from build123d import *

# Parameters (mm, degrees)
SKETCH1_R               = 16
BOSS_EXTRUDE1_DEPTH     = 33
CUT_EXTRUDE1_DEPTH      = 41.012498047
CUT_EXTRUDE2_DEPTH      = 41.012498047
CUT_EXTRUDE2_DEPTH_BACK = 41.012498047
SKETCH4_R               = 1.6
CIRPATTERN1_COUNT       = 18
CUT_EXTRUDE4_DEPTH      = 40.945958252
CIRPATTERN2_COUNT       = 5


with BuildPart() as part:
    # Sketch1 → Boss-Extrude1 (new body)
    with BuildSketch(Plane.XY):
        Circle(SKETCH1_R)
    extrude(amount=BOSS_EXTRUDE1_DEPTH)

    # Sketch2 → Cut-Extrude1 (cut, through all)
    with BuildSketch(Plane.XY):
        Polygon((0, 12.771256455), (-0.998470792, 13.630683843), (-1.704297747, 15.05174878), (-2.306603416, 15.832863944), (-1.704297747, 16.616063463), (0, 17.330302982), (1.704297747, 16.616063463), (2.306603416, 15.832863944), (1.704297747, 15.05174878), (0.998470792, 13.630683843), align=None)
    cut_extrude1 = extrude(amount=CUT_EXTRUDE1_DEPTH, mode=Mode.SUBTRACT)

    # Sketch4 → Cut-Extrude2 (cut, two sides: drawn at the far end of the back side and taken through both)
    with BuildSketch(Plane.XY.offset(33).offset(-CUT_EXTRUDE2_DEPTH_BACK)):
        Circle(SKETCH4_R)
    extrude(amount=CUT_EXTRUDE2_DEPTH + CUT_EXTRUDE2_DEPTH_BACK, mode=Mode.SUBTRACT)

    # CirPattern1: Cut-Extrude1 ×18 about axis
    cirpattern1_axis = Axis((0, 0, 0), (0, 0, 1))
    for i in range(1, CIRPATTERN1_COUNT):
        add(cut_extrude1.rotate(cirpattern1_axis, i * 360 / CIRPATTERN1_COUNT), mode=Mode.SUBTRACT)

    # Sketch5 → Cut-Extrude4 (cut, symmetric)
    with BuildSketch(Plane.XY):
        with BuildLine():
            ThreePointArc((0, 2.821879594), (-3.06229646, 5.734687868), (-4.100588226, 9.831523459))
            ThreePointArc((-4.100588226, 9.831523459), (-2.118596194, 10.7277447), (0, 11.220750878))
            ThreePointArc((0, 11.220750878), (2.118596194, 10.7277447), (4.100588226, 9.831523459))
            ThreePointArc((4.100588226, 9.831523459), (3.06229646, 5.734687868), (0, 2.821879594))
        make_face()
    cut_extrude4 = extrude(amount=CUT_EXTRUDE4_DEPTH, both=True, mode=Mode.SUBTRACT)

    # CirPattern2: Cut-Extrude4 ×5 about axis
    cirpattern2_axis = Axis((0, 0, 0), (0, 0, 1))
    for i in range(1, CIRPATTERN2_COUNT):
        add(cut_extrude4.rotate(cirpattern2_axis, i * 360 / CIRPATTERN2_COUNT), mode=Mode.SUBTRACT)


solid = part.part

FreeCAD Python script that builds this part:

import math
import FreeCAD as App
import Part
import Sketcher
from FreeCAD import Vector
Q = App.Units.Quantity

doc = App.newDocument("Part")
params = doc.addObject("Spreadsheet::Sheet", "Params")
for row, (alias, value) in enumerate([
    ("sketch1_diameter", "32 mm"),
    ("pad1_length", "33 mm"),
    ("sketch3_diameter", "3.2 mm"),
    ("pocket3_length", "81.891917 mm"),
], start=1):
    params.set(f"A{row}", alias)
    params.set(f"B{row}", "=" + value)
    params.setAlias(f"B{row}", alias)

body = doc.addObject("PartDesign::Body", "Body")

# Sketch on XY plane
sketch1 = body.newObject("Sketcher::SketchObject", "Sketch")
sketch1.AttachmentSupport = (doc.getObject("XY_Plane"), [""])
sketch1.MapMode = "FlatFace"
sketch1.addGeometry(Part.Circle(Vector(0, 0, 0), Vector(0, 0, 1), 16), False)
sketch1.addConstraint([
    Sketcher.Constraint("Coincident", 0, 3, -1, 1),
    Sketcher.Constraint("Diameter", 0, Q("32 mm")),
])
sketch1.setExpression("Constraints[1]", "Params.sketch1_diameter")
pad1 = body.newObject("PartDesign::Pad", "Pad")
pad1.Profile = sketch1
pad1.setExpression("Length", "Params.pad1_length")

# Sketch on XY plane
sketch2 = body.newObject("Sketcher::SketchObject", "Sketch001")
sketch2.AttachmentSupport = (doc.getObject("XY_Plane"), [""])
sketch2.MapMode = "FlatFace"
sketch2.addGeometry([
    Part.LineSegment(Vector(-1, 13.6, 0), Vector(0, 12.8, 0)),  # 0
    Part.LineSegment(Vector(0, 12.8, 0), Vector(1, 13.6, 0)),  # 1
    Part.LineSegment(Vector(1, 13.6, 0), Vector(1.7, 15.1, 0)),  # 2
    Part.LineSegment(Vector(1.7, 15.1, 0), Vector(2.3, 15.8, 0)),  # 3
    Part.LineSegment(Vector(2.3, 15.8, 0), Vector(1.7, 16.6, 0)),  # 4
    Part.LineSegment(Vector(1.7, 16.6, 0), Vector(0, 17.3, 0)),  # 5
    Part.LineSegment(Vector(0, 17.3, 0), Vector(-1.7, 16.6, 0)),  # 6
    Part.LineSegment(Vector(-1.7, 16.6, 0), Vector(-2.3, 15.8, 0)),  # 7
    Part.LineSegment(Vector(-2.3, 15.8, 0), Vector(-1.7, 15.1, 0)),  # 8
    Part.LineSegment(Vector(-1.7, 15.1, 0), Vector(-1, 13.6, 0)),  # 9
], False)
sketch2.addConstraint([
    Sketcher.Constraint("Coincident", 0, 2, 1, 1),
    Sketcher.Constraint("Coincident", 1, 2, 2, 1),
    Sketcher.Constraint("Coincident", 2, 2, 3, 1),
    Sketcher.Constraint("Coincident", 3, 2, 4, 1),
    Sketcher.Constraint("Coincident", 4, 2, 5, 1),
    Sketcher.Constraint("Coincident", 5, 2, 6, 1),
    Sketcher.Constraint("Coincident", 6, 2, 7, 1),
    Sketcher.Constraint("Coincident", 7, 2, 8, 1),
    Sketcher.Constraint("Coincident", 8, 2, 9, 1),
    Sketcher.Constraint("Coincident", 9, 2, 0, 1),
    Sketcher.Constraint("Symmetric", 4, 2, 6, 2, -2),
    Sketcher.Constraint("Symmetric", 3, 2, 7, 2, -2),
    Sketcher.Constraint("Symmetric", 2, 2, 8, 2, -2),
    Sketcher.Constraint("Symmetric", 1, 2, 9, 2, -2),
    Sketcher.Constraint("PointOnObject", 0, 2, -2),
    Sketcher.Constraint("PointOnObject", 5, 2, -2),
    Sketcher.Constraint("Vertical", 2, 2, 4, 2),
    Sketcher.Constraint("Angle", 0, Q("-40.720015 deg")),
    Sketcher.Constraint("Distance", 2, Q("1.5867 mm")),
    Sketcher.Constraint("DistanceY", 3, 2, 4, 2, Q("0.7832 mm")),
    Sketcher.Constraint("DistanceX", 6, 2, 3, 2, Q("4.010901 mm")),
    Sketcher.Constraint("Distance", 5, Q("1.847909 mm")),
    Sketcher.Constraint("DistanceX", -1, 1, 1, 2, Q("0.998471 mm")),
    Sketcher.Constraint("DistanceY", -1, 1, 2, 2, Q("15.051749 mm")),
    Sketcher.Constraint("DistanceY", 1, 2, 3, 2, Q("2.20218 mm")),
    Sketcher.Constraint("DistanceY", 4, 2, 5, 2, Q("0.71424 mm")),
])
pocket1 = body.newObject("PartDesign::Pocket", "Pocket")
pocket1.Profile = sketch2
pocket1.Type = "ThroughAll"
pocket1.Reversed = True

# Sketch on XY plane
sketch3 = body.newObject("Sketcher::SketchObject", "Sketch002")
sketch3.AttachmentSupport = (doc.getObject("XY_Plane"), [""])
sketch3.MapMode = "FlatFace"
sketch3.AttachmentOffset = App.Placement(Vector(0, 0, 33), App.Rotation())
sketch3.addGeometry(Part.Circle(Vector(0, 0, 0), Vector(0, 0, 1), 1.6), False)
sketch3.addConstraint([
    Sketcher.Constraint("Coincident", 0, 3, -1, 1),
    Sketcher.Constraint("Diameter", 0, Q("3.2 mm")),
])
sketch3.setExpression("Constraints[1]", "Params.sketch3_diameter")
pocket2 = body.newObject("PartDesign::Pocket", "Pocket001")
pocket2.Profile = sketch3
pocket2.Type = "ThroughAll"
pocket2.Midplane = True
doc.recompute()

polarpattern = body.newObject("PartDesign::PolarPattern", "PolarPattern")
polarpattern.Originals = [pocket1]
polarpattern.Axis = (doc.getObject("Z_Axis"), [""])
polarpattern.Angle = 360
polarpattern.Occurrences = 18
body.Tip = polarpattern

# Sketch on XY plane
sketch4 = body.newObject("Sketcher::SketchObject", "Sketch003")
sketch4.AttachmentSupport = (doc.getObject("XY_Plane"), [""])
sketch4.MapMode = "FlatFace"
sketch4.addGeometry([
    Part.ArcOfCircle(Part.Circle(Vector(3.5, 9.6, 0), Vector(0, 0, 1), 7.6), math.radians(178), math.radians(243)),
    Part.ArcOfCircle(Part.Circle(Vector(-3.5, 9.6, 0), Vector(0, 0, 1), 7.6), math.radians(-63), math.radians(2)),
    Part.ArcOfCircle(Part.Circle(Vector(-1.4, 0.2, 0), Vector(0, 0, 1), 11.1), math.radians(60), math.radians(83)),
    Part.ArcOfCircle(Part.Circle(Vector(1.4, 0.2, 0), Vector(0, 0, 1), 11.1), math.radians(97), math.radians(120)),
], False)
sketch4.addConstraint([
    Sketcher.Constraint("Coincident", 0, 2, 1, 1),
    Sketcher.Constraint("Coincident", 1, 2, 2, 1),
    Sketcher.Constraint("Coincident", 2, 2, 3, 1),
    Sketcher.Constraint("Coincident", 3, 2, 0, 1),
    Sketcher.Constraint("Equal", 0, 1),
    Sketcher.Constraint("Equal", 2, 3),
    Sketcher.Constraint("Symmetric", 0, 3, 1, 3, -2),
    Sketcher.Constraint("Symmetric", 2, 3, 3, 3, -2),
    Sketcher.Constraint("Radius", 0, Q("7.617458 mm")),
    Sketcher.Constraint("Radius", 2, Q("11.113953 mm")),
    Sketcher.Constraint("DistanceX", 1, 3, 0, 3, Q("7.025501 mm")),
    Sketcher.Constraint("DistanceY", -1, 1, 0, 3, Q("9.58104 mm")),
    Sketcher.Constraint("DistanceX", 2, 3, -1, 1, Q("1.447572 mm")),
    Sketcher.Constraint("DistanceX", -1, 1, 1, 2, Q("4.100588 mm")),
])
pocket3 = body.newObject("PartDesign::Pocket", "Pocket002")
pocket3.Profile = sketch4
pocket3.setExpression("Length", "Params.pocket3_length")
pocket3.Midplane = True
doc.recompute()

polarpattern2 = body.newObject("PartDesign::PolarPattern", "PolarPattern001")
polarpattern2.Originals = [pocket3]
polarpattern2.Axis = (doc.getObject("Z_Axis"), [""])
polarpattern2.Angle = 360
polarpattern2.Occurrences = 5
body.Tip = polarpattern2

doc.recompute()
